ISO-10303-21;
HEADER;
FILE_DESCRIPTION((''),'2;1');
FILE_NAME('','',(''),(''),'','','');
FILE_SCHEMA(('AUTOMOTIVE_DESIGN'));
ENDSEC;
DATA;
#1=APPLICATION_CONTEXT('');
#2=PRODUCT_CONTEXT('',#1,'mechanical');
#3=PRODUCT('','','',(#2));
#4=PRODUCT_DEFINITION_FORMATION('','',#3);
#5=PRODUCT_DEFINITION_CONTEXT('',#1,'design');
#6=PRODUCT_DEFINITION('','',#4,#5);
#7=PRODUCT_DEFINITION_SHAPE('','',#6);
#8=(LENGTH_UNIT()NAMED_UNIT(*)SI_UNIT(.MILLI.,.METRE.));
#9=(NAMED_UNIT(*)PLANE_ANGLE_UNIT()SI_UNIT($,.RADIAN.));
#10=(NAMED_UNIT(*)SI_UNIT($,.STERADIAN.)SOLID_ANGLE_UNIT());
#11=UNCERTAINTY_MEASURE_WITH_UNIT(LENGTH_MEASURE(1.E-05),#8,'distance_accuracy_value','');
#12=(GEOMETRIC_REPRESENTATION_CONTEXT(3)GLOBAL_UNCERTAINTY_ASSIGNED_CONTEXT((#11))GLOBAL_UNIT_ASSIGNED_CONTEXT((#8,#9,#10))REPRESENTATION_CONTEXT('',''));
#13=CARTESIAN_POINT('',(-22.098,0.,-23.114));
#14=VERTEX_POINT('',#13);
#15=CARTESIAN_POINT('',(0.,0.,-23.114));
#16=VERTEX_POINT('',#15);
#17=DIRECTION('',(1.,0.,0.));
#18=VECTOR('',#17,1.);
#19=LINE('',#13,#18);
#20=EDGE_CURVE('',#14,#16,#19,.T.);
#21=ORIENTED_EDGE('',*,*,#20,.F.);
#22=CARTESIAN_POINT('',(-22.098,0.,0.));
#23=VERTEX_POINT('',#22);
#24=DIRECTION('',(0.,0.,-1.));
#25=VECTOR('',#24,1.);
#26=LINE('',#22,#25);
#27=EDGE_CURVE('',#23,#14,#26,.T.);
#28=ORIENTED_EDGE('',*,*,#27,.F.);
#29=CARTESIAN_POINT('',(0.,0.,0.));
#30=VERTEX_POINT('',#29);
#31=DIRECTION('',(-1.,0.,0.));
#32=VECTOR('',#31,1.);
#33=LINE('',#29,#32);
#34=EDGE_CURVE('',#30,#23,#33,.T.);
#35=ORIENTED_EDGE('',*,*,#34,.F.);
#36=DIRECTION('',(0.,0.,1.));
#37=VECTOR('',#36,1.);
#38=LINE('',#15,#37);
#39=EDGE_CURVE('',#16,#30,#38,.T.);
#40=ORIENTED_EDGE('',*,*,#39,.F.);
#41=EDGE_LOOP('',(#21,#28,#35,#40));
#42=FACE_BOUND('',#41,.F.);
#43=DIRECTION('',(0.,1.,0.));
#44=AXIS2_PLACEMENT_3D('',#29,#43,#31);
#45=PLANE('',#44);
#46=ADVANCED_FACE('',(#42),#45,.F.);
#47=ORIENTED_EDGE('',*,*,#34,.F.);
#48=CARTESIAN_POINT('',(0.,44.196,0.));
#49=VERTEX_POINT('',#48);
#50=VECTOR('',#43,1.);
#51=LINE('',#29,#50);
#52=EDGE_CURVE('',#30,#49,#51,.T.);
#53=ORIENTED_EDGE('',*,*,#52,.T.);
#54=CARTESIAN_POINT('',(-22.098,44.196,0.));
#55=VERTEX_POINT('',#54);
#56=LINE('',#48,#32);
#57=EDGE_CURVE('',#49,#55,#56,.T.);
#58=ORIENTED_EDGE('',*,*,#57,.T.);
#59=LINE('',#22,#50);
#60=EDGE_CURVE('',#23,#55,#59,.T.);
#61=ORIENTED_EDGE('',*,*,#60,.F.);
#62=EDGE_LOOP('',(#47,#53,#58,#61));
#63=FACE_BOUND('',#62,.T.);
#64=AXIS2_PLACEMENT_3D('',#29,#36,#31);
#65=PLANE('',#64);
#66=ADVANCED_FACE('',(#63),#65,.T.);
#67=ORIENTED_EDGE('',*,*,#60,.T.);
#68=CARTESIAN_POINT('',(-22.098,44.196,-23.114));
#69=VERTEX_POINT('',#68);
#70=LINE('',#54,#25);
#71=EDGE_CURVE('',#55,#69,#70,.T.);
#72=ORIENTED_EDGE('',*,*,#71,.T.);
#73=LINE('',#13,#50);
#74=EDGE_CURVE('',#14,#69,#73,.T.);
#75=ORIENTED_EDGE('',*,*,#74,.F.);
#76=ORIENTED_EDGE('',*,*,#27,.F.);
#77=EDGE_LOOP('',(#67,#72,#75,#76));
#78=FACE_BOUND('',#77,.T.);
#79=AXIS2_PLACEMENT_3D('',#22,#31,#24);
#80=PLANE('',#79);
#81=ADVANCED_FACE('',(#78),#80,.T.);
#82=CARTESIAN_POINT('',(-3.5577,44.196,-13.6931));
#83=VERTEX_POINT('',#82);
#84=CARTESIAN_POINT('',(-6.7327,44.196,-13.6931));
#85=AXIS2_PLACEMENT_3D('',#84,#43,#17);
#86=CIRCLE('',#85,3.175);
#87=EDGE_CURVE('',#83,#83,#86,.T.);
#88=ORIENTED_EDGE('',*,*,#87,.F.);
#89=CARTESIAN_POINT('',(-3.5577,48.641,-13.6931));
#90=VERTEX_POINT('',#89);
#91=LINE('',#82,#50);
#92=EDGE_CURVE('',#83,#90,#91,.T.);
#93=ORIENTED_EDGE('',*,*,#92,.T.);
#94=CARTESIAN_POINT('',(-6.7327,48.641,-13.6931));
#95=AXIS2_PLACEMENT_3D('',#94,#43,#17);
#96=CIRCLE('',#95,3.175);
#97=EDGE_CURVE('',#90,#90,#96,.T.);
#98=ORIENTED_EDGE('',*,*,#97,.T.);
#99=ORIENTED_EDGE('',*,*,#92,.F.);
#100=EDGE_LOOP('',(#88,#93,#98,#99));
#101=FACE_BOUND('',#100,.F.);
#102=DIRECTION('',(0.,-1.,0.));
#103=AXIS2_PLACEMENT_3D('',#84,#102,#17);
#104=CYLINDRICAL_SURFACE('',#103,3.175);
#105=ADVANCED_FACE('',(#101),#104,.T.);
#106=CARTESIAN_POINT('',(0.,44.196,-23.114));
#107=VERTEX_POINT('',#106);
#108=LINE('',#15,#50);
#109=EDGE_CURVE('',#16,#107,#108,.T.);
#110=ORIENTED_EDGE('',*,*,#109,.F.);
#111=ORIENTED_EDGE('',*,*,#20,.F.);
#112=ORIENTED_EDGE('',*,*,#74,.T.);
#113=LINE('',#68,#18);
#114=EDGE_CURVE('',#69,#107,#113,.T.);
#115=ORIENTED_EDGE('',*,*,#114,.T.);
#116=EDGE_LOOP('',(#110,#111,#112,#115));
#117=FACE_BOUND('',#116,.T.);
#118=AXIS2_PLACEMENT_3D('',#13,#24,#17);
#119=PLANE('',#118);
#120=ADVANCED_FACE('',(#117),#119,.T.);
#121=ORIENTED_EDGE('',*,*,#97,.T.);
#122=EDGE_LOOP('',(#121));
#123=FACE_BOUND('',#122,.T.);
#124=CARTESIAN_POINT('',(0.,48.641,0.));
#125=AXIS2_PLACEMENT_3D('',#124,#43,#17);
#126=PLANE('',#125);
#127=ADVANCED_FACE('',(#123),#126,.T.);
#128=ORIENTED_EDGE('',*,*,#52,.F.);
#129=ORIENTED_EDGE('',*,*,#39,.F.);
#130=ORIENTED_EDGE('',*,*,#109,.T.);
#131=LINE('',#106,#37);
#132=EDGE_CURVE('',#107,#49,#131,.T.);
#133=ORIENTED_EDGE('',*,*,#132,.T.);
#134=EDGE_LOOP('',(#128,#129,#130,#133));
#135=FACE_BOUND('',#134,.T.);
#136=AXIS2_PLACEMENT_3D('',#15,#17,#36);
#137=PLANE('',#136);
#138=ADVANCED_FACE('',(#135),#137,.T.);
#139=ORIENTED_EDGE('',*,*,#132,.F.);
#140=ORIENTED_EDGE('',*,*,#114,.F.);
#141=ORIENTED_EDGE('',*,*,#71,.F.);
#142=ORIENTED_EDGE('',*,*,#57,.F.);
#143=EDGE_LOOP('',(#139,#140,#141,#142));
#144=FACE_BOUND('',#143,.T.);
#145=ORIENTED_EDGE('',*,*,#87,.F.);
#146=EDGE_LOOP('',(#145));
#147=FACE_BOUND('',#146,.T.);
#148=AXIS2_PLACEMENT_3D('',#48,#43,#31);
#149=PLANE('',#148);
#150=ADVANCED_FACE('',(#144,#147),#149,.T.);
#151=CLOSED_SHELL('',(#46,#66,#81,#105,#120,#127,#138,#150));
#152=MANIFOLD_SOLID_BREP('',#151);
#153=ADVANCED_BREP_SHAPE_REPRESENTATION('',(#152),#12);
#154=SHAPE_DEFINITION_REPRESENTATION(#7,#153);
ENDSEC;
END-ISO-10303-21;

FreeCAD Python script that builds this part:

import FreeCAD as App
import Part
import Sketcher
from FreeCAD import Vector
Q = App.Units.Quantity

doc = App.newDocument("Part")
body = doc.addObject("PartDesign::Body", "Body")

# Sketch on XZ plane
sketch1 = doc.addObject("Sketcher::SketchObject", "Sketch")
body.addObject(sketch1)
sketch1.AttachmentSupport = (doc.XZ_Plane, [""])
sketch1.MapMode = "FlatFace"
sketch1.addGeometry([
    Part.LineSegment(Vector(-22, 0, 0), Vector(0, 0, 0)),
    Part.LineSegment(Vector(0, 0, 0), Vector(0, -23, 0)),
    Part.LineSegment(Vector(0, -23, 0), Vector(-22, -23, 0)),
    Part.LineSegment(Vector(-22, -23, 0), Vector(-22, 0, 0)),
], False)
sketch1.addConstraint([
    Sketcher.Constraint("Coincident", 0, 2, 1, 1),
    Sketcher.Constraint("Coincident", 1, 2, 2, 1),
    Sketcher.Constraint("Coincident", 2, 2, 3, 1),
    Sketcher.Constraint("Coincident", 3, 2, 0, 1),
    Sketcher.Constraint("Horizontal", 0),
    Sketcher.Constraint("Vertical", 1),
    Sketcher.Constraint("Horizontal", 2),
    Sketcher.Constraint("Vertical", 3),
    Sketcher.Constraint("Coincident", 0, 2, -1, 1),
    Sketcher.Constraint("DistanceX", 0, 1, 0, 2, Q("0.87 in")),
    Sketcher.Constraint("DistanceY", 1, 2, 1, 1, Q("0.91 in")),
])
pad1 = doc.addObject("PartDesign::Pad", "Pad")
body.addObject(pad1)
pad1.Profile = sketch1
pad1.Length = Q("1.74 in")
pad1.Reversed = True

# Sketch on XZ plane
sketch2 = doc.addObject("Sketcher::SketchObject", "Sketch001")
body.addObject(sketch2)
sketch2.AttachmentSupport = (doc.XZ_Plane, [""])
sketch2.MapMode = "FlatFace"
sketch2.AttachmentOffset = App.Placement(Vector(0, 0, -1.74 * 25.4), App.Rotation())
sketch2.addGeometry(Part.Circle(Vector(-6.7, -13.7, 0), Vector(0, 0, 1), 3.2), False)
sketch2.addConstraint([
    Sketcher.Constraint("Diameter", 0, Q("0.25 in")),
    Sketcher.Constraint("DistanceY", 0, 3, -1, 1, Q("0.5391 in")),
    Sketcher.Constraint("DistanceX", 0, 3, -1, 1, Q("6.7327 mm")),
])
pad2 = doc.addObject("PartDesign::Pad", "Pad001")
body.addObject(pad2)
pad2.Profile = sketch2
pad2.Length = Q("0.175 in")
pad2.Reversed = True

doc.recompute()
